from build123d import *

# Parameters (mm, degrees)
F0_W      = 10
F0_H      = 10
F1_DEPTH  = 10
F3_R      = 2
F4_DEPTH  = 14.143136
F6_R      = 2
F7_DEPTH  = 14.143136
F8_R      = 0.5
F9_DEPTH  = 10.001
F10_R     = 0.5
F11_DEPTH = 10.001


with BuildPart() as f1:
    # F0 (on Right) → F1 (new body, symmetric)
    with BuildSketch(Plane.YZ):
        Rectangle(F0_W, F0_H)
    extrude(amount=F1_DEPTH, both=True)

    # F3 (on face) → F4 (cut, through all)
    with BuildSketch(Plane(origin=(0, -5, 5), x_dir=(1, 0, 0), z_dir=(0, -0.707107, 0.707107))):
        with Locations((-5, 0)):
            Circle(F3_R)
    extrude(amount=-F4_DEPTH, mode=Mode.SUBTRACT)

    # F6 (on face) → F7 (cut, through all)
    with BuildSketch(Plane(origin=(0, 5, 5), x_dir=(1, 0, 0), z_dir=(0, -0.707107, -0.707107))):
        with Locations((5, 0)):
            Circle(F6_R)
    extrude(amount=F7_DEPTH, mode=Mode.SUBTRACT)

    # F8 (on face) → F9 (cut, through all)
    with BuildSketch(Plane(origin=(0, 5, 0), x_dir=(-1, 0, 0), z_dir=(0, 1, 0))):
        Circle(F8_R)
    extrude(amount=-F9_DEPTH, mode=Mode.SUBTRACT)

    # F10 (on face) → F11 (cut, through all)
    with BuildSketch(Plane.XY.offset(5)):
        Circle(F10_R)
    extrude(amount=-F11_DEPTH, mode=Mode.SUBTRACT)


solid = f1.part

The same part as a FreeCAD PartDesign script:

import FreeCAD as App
import Part
import Sketcher

V = App.Vector

doc = App.newDocument("Part")
body = doc.addObject("PartDesign::Body", "Body")

sketch1 = body.newObject("Sketcher::SketchObject", "Sketch")
sketch1.AttachmentSupport = (doc.getObject("YZ_Plane"), [""])
sketch1.MapMode = "FlatFace"
sketch1.addGeometry(Part.LineSegment(V(-5, 5, 0), V(-5, -5, 0)), False)
sketch1.addGeometry(Part.LineSegment(V(-5, -5, 0), V(5, -5, 0)), False)
sketch1.addGeometry(Part.LineSegment(V(5, -5, 0), V(5, 5, 0)), False)
sketch1.addGeometry(Part.LineSegment(V(5, 5, 0), V(-5, 5, 0)), False)
sketch1.addConstraint(Sketcher.Constraint("Coincident", 0, 2, 1, 1))
sketch1.addConstraint(Sketcher.Constraint("Coincident", 1, 2, 2, 1))
sketch1.addConstraint(Sketcher.Constraint("Coincident", 2, 2, 3, 1))
sketch1.addConstraint(Sketcher.Constraint("Coincident", 3, 2, 0, 1))
sketch1.addConstraint(Sketcher.Constraint("Vertical", 0))
sketch1.addConstraint(Sketcher.Constraint("Horizontal", 1))
sketch1.addConstraint(Sketcher.Constraint("Vertical", 2))
sketch1.addConstraint(Sketcher.Constraint("Horizontal", 3))
sketch1.addConstraint(Sketcher.Constraint("Symmetric", 0, 2, 2, 2, -1, 1))
sketch1.addConstraint(Sketcher.Constraint("Equal", 3, 0))
sketch1.addConstraint(Sketcher.Constraint("DistanceX", 1, 1, 1, 2, 10.0))
pad1 = body.newObject("PartDesign::Pad", "Pad")
pad1.Profile = sketch1
pad1.Length = 20
pad1.Midplane = True

sketch2 = body.newObject("Sketcher::SketchObject", "Sketch001")
sketch2.Placement = App.Placement(V(0, -5, 5), App.Rotation(V(1, 0, 0), V(0, 0.707106781, 0.707106781), V(0, -0.707106781, 0.707106781), "ZXY"))
sketch2.addGeometry(Part.Circle(V(-5, 0, 0), V(0, 0, 1), 2), False)
sketch2.addConstraint(Sketcher.Constraint("PointOnObject", 0, 3, -1))
sketch2.addConstraint(Sketcher.Constraint("Diameter", 0, 4.0))
sketch2.addConstraint(Sketcher.Constraint("DistanceX", 0, 3, -1, 1, 5.0))
pocket1 = body.newObject("PartDesign::Pocket", "Pocket")
pocket1.Profile = sketch2
pocket1.Type = "ThroughAll"

sketch3 = body.newObject("Sketcher::SketchObject", "Sketch002")
sketch3.Placement = App.Placement(V(0, 5, 5), App.Rotation(V(1, 0, 0), V(0, -0.707106781, 0.707106781), V(0, -0.707106781, -0.707106781), "ZXY"))
sketch3.addGeometry(Part.Circle(V(5, 0, 0), V(0, 0, 1), 2), False)
sketch3.addConstraint(Sketcher.Constraint("PointOnObject", 0, 3, -1))
sketch3.addConstraint(Sketcher.Constraint("Diameter", 0, 4.0))
sketch3.addConstraint(Sketcher.Constraint("DistanceX", -1, 1, 0, 3, 5.0))
pocket2 = body.newObject("PartDesign::Pocket", "Pocket001")
pocket2.Profile = sketch3
pocket2.Type = "ThroughAll"
pocket2.Reversed = True

sketch4 = body.newObject("Sketcher::SketchObject", "Sketch003")
sketch4.AttachmentSupport = (doc.getObject("XZ_Plane"), [""])
sketch4.MapMode = "FlatFace"
sketch4.AttachmentOffset = App.Placement(V(0, 0, -5), App.Rotation())
sketch4.addGeometry(Part.Circle(V(0, 0, 0), V(0, 0, 1), 0.5), False)
sketch4.addConstraint(Sketcher.Constraint("Coincident", 0, 3, -1, 1))
sketch4.addConstraint(Sketcher.Constraint("Diameter", 0, 1.0))
pocket3 = body.newObject("PartDesign::Pocket", "Pocket002")
pocket3.Profile = sketch4
pocket3.Type = "ThroughAll"
pocket3.Reversed = True

sketch5 = body.newObject("Sketcher::SketchObject", "Sketch004")
sketch5.AttachmentSupport = (doc.getObject("XY_Plane"), [""])
sketch5.MapMode = "FlatFace"
sketch5.AttachmentOffset = App.Placement(V(0, 0, 5), App.Rotation())
sketch5.addGeometry(Part.Circle(V(0, 0, 0), V(0, 0, 1), 0.5), False)
sketch5.addConstraint(Sketcher.Constraint("Coincident", 0, 3, -1, 1))
sketch5.addConstraint(Sketcher.Constraint("Diameter", 0, 1.0))
pocket4 = body.newObject("PartDesign::Pocket", "Pocket003")
pocket4.Profile = sketch5
pocket4.Type = "ThroughAll"

doc.recompute()
